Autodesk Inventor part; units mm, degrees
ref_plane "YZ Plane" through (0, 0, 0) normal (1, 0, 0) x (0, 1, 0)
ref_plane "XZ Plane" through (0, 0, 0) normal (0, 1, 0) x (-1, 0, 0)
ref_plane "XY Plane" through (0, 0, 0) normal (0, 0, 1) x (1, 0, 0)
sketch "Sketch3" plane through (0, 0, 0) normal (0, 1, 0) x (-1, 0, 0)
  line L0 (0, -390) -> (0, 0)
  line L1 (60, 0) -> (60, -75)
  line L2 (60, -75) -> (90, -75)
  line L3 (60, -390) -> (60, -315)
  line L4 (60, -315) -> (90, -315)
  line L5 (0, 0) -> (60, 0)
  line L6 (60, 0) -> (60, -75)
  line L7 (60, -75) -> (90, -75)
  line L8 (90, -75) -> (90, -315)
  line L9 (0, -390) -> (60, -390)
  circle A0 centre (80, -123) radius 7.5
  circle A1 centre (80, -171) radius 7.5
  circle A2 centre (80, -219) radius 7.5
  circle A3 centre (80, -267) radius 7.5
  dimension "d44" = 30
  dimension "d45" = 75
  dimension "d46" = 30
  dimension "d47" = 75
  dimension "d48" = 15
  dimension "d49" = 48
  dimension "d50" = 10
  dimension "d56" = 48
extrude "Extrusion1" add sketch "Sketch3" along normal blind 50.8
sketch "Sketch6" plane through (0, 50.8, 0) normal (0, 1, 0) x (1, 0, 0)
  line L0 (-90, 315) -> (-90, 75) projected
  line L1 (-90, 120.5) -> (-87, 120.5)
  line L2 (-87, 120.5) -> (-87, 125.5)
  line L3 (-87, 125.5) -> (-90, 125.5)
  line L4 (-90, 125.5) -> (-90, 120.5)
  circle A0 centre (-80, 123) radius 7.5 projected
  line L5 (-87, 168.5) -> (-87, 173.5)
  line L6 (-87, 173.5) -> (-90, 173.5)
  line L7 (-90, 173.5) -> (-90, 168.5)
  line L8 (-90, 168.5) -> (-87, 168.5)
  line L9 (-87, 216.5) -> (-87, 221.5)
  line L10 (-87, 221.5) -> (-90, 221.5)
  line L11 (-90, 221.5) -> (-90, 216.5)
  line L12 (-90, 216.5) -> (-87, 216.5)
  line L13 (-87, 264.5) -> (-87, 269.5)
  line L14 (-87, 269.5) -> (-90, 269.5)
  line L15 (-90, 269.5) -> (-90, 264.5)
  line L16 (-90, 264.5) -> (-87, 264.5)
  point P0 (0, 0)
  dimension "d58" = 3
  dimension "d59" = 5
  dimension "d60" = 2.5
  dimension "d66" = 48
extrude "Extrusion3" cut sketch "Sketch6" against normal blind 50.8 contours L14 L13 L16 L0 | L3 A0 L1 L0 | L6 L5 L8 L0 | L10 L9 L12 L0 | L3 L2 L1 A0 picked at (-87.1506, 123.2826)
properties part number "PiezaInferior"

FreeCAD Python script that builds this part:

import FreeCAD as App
import Part
import Sketcher

V = App.Vector

doc = App.newDocument("Part")
params = doc.addObject("Spreadsheet::Sheet", "Params")
for row, (alias, value) in enumerate([
    ("sketch1_diameter", "15 mm"),
    ("sketch1_width", "30 mm"),
    ("sketch1_height", "75 mm"),
    ("sketch1_width2", "60 mm"),
    ("pad1_length", "50.8 mm"),
    ("sketch2_width", "3 mm"),
    ("sketch2_height", "5 mm"),
    ("pocket1_length", "50.8 mm"),
], start=1):
    params.set(f"A{row}", alias)
    params.set(f"B{row}", "=" + value)
    params.setAlias(f"B{row}", alias)

body = doc.addObject("PartDesign::Body", "Body")

sketch1 = body.newObject("Sketcher::SketchObject", "Sketch")
sketch1.AttachmentSupport = (doc.getObject("XZ_Plane"), [""])
sketch1.MapMode = "FlatFace"
sketch1.addGeometry(Part.LineSegment(V(0, 0, 0), V(0, -390, 0)), False)
sketch1.addGeometry(Part.LineSegment(V(0, -390, 0), V(-60, -390, 0)), False)
sketch1.addGeometry(Part.LineSegment(V(-60, -390, 0), V(-60, -315, 0)), False)
sketch1.addGeometry(Part.LineSegment(V(-60, -315, 0), V(-90, -315, 0)), False)
sketch1.addGeometry(Part.LineSegment(V(-90, -315, 0), V(-90, -75, 0)), False)
sketch1.addGeometry(Part.LineSegment(V(-90, -75, 0), V(-60, -75, 0)), False)
sketch1.addGeometry(Part.LineSegment(V(-60, -75, 0), V(-60, 0, 0)), False)
sketch1.addGeometry(Part.LineSegment(V(-60, 0, 0), V(0, 0, 0)), False)
sketch1.addGeometry(Part.Circle(V(-80, -267, 0), V(0, 0, 1), 8), False)
sketch1.addGeometry(Part.Circle(V(-80, -219, 0), V(0, 0, 1), 8), False)
sketch1.addGeometry(Part.Circle(V(-80, -171, 0), V(0, 0, 1), 8), False)
sketch1.addGeometry(Part.Circle(V(-80, -123, 0), V(0, 0, 1), 8), False)
sketch1.addConstraint(Sketcher.Constraint("Coincident", 0, 2, 1, 1))
sketch1.addConstraint(Sketcher.Constraint("Coincident", 1, 2, 2, 1))
sketch1.addConstraint(Sketcher.Constraint("Coincident", 2, 2, 3, 1))
sketch1.addConstraint(Sketcher.Constraint("Coincident", 3, 2, 4, 1))
sketch1.addConstraint(Sketcher.Constraint("Coincident", 4, 2, 5, 1))
sketch1.addConstraint(Sketcher.Constraint("Coincident", 5, 2, 6, 1))
sketch1.addConstraint(Sketcher.Constraint("Coincident", 6, 2, 7, 1))
sketch1.addConstraint(Sketcher.Constraint("Coincident", 7, 2, 0, 1))
sketch1.addConstraint(Sketcher.Constraint("Vertical", 0))
sketch1.addConstraint(Sketcher.Constraint("Horizontal", 1))
sketch1.addConstraint(Sketcher.Constraint("Vertical", 2))
sketch1.addConstraint(Sketcher.Constraint("Horizontal", 3))
sketch1.addConstraint(Sketcher.Constraint("Vertical", 4))
sketch1.addConstraint(Sketcher.Constraint("Horizontal", 5))
sketch1.addConstraint(Sketcher.Constraint("Vertical", 6))
sketch1.addConstraint(Sketcher.Constraint("Horizontal", 7))
sketch1.addConstraint(Sketcher.Constraint("Coincident", 7, 2, -1, 1))
sketch1.addConstraint(Sketcher.Constraint("Equal", 8, 9))
sketch1.addConstraint(Sketcher.Constraint("Equal", 9, 10))
sketch1.addConstraint(Sketcher.Constraint("Equal", 10, 11))
sketch1.addConstraint(Sketcher.Constraint("Vertical", 8, 3, 9, 3))
sketch1.addConstraint(Sketcher.Constraint("Vertical", 9, 3, 10, 3))
sketch1.addConstraint(Sketcher.Constraint("Vertical", 10, 3, 11, 3))
sketch1.addConstraint(Sketcher.Constraint("Vertical", 2, 2, 5, 2))
sketch1.addConstraint(Sketcher.Constraint("Equal", 2, 6))
sketch1.addConstraint(Sketcher.Constraint("Diameter", 8, 15.0))
sketch1.addConstraint(Sketcher.Constraint("DistanceX", 3, 2, 3, 1, 30.0))
sketch1.addConstraint(Sketcher.Constraint("DistanceY", 2, 1, 2, 2, 75.0))
sketch1.addConstraint(Sketcher.Constraint("DistanceY", 8, 3, 9, 3, 48.0))
sketch1.addConstraint(Sketcher.Constraint("DistanceY", 9, 3, 10, 3, 48.0))
sketch1.addConstraint(Sketcher.Constraint("DistanceY", 10, 3, 11, 3, 48.0))
sketch1.addConstraint(Sketcher.Constraint("DistanceY", 2, 2, 8, 3, 48.0))
sketch1.addConstraint(Sketcher.Constraint("DistanceX", 3, 2, 8, 3, 10.0))
sketch1.addConstraint(Sketcher.Constraint("DistanceY", 11, 3, 4, 2, 48.0))
sketch1.addConstraint(Sketcher.Constraint("DistanceX", 1, 2, 1, 1, 60.0))
sketch1.setExpression("Constraints[25]", "Params.sketch1_diameter")
sketch1.setExpression("Constraints[26]", "Params.sketch1_width")
sketch1.setExpression("Constraints[27]", "Params.sketch1_height")
sketch1.setExpression("Constraints[34]", "Params.sketch1_width2")
pad1 = body.newObject("PartDesign::Pad", "Pad")
pad1.Profile = sketch1
pad1.setExpression("Length", "Params.pad1_length")
pad1.Reversed = True

sketch2 = body.newObject("Sketcher::SketchObject", "Sketch001")
sketch2.AttachmentSupport = (doc.getObject("XZ_Plane"), [""])
sketch2.MapMode = "FlatFace"
sketch2.AttachmentOffset = App.Placement(V(0, 0, -50.8), App.Rotation())
sketch2.addGeometry(Part.LineSegment(V(-87, -269.5, 0), V(-90, -269.5, 0)), False)
sketch2.addGeometry(Part.LineSegment(V(-90, -269.5, 0), V(-90, -264.5, 0)), False)
sketch2.addGeometry(Part.LineSegment(V(-90, -264.5, 0), V(-87, -264.5, 0)), False)
sketch2.addGeometry(Part.LineSegment(V(-87, -264.5, 0), V(-87, -269.5, 0)), False)
sketch2.addGeometry(Part.LineSegment(V(-90, -125.5, 0), V(-90, -120.5, 0)), False)
sketch2.addGeometry(Part.LineSegment(V(-90, -120.5, 0), V(-87, -120.5, 0)), False)
sketch2.addGeometry(Part.LineSegment(V(-87, -120.5, 0), V(-87, -125.5, 0)), False)
sketch2.addGeometry(Part.LineSegment(V(-87, -125.5, 0), V(-90, -125.5, 0)), False)
sketch2.addGeometry(Part.LineSegment(V(-87, -173.5, 0), V(-90, -173.5, 0)), False)
sketch2.addGeometry(Part.LineSegment(V(-90, -173.5, 0), V(-90, -168.5, 0)), False)
sketch2.addGeometry(Part.LineSegment(V(-90, -168.5, 0), V(-87, -168.5, 0)), False)
sketch2.addGeometry(Part.LineSegment(V(-87, -168.5, 0), V(-87, -173.5, 0)), False)
sketch2.addGeometry(Part.LineSegment(V(-87, -221.5, 0), V(-90, -221.5, 0)), False)
sketch2.addGeometry(Part.LineSegment(V(-90, -221.5, 0), V(-90, -216.5, 0)), False)
sketch2.addGeometry(Part.LineSegment(V(-90, -216.5, 0), V(-87, -216.5, 0)), False)
sketch2.addGeometry(Part.LineSegment(V(-87, -216.5, 0), V(-87, -221.5, 0)), False)
sketch2.addConstraint(Sketcher.Constraint("Coincident", 0, 2, 1, 1))
sketch2.addConstraint(Sketcher.Constraint("Coincident", 1, 2, 2, 1))
sketch2.addConstraint(Sketcher.Constraint("Coincident", 2, 2, 3, 1))
sketch2.addConstraint(Sketcher.Constraint("Coincident", 3, 2, 0, 1))
sketch2.addConstraint(Sketcher.Constraint("Coincident", 4, 2, 5, 1))
sketch2.addConstraint(Sketcher.Constraint("Coincident", 5, 2, 6, 1))
sketch2.addConstraint(Sketcher.Constraint("Coincident", 6, 2, 7, 1))
sketch2.addConstraint(Sketcher.Constraint("Coincident", 7, 2, 4, 1))
sketch2.addConstraint(Sketcher.Constraint("Coincident", 8, 2, 9, 1))
sketch2.addConstraint(Sketcher.Constraint("Coincident", 9, 2, 10, 1))
sketch2.addConstraint(Sketcher.Constraint("Coincident", 10, 2, 11, 1))
sketch2.addConstraint(Sketcher.Constraint("Coincident", 11, 2, 8, 1))
sketch2.addConstraint(Sketcher.Constraint("Coincident", 12, 2, 13, 1))
sketch2.addConstraint(Sketcher.Constraint("Coincident", 13, 2, 14, 1))
sketch2.addConstraint(Sketcher.Constraint("Coincident", 14, 2, 15, 1))
sketch2.addConstraint(Sketcher.Constraint("Coincident", 15, 2, 12, 1))
sketch2.addConstraint(Sketcher.Constraint("Horizontal", 0))
sketch2.addConstraint(Sketcher.Constraint("Vertical", 1))
sketch2.addConstraint(Sketcher.Constraint("Horizontal", 2))
sketch2.addConstraint(Sketcher.Constraint("Vertical", 3))
sketch2.addConstraint(Sketcher.Constraint("Vertical", 4))
sketch2.addConstraint(Sketcher.Constraint("Horizontal", 5))
sketch2.addConstraint(Sketcher.Constraint("Vertical", 6))
sketch2.addConstraint(Sketcher.Constraint("Horizontal", 7))
sketch2.addConstraint(Sketcher.Constraint("Horizontal", 8))
sketch2.addConstraint(Sketcher.Constraint("Vertical", 9))
sketch2.addConstraint(Sketcher.Constraint("Horizontal", 10))
sketch2.addConstraint(Sketcher.Constraint("Vertical", 11))
sketch2.addConstraint(Sketcher.Constraint("Horizontal", 12))
sketch2.addConstraint(Sketcher.Constraint("Vertical", 13))
sketch2.addConstraint(Sketcher.Constraint("Horizontal", 14))
sketch2.addConstraint(Sketcher.Constraint("Vertical", 15))
sketch2.addConstraint(Sketcher.Constraint("Vertical", 1, 2, 4, 2))
sketch2.addConstraint(Sketcher.Constraint("Vertical", 3, 2, 5, 2))
sketch2.addConstraint(Sketcher.Constraint("Vertical", 7, 2, 8, 2))
sketch2.addConstraint(Sketcher.Constraint("Vertical", 6, 2, 10, 2))
sketch2.addConstraint(Sketcher.Constraint("Vertical", 9, 2, 12, 2))
sketch2.addConstraint(Sketcher.Constraint("Vertical", 11, 2, 14, 2))
sketch2.addConstraint(Sketcher.Constraint("Equal", 3, 4))
sketch2.addConstraint(Sketcher.Constraint("Equal", 6, 9))
sketch2.addConstraint(Sketcher.Constraint("Equal", 11, 13))
sketch2.addConstraint(Sketcher.Constraint("DistanceX", 0, 2, 0, 1, 3.0))
sketch2.addConstraint(Sketcher.Constraint("DistanceY", 1, 1, 1, 2, 5.0))
sketch2.addConstraint(Sketcher.Constraint("DistanceY", 8, 2, 7, 2, 48.0))
sketch2.addConstraint(Sketcher.Constraint("DistanceY", 0, 2, 12, 2, 48.0))
sketch2.addConstraint(Sketcher.Constraint("DistanceY", 12, 2, 8, 2, 48.0))
sketch2.addConstraint(Sketcher.Constraint("DistanceX", 0, 2, -1, 1, 90.0))
sketch2.addConstraint(Sketcher.Constraint("DistanceY", 0, 2, -1, 1, 269.5))
sketch2.setExpression("Constraints[41]", "Params.sketch2_width")
sketch2.setExpression("Constraints[42]", "Params.sketch2_height")
pocket1 = body.newObject("PartDesign::Pocket", "Pocket")
pocket1.Profile = sketch2
pocket1.setExpression("Length", "Params.pocket1_length")
pocket1.Reversed = True

doc.recompute()
